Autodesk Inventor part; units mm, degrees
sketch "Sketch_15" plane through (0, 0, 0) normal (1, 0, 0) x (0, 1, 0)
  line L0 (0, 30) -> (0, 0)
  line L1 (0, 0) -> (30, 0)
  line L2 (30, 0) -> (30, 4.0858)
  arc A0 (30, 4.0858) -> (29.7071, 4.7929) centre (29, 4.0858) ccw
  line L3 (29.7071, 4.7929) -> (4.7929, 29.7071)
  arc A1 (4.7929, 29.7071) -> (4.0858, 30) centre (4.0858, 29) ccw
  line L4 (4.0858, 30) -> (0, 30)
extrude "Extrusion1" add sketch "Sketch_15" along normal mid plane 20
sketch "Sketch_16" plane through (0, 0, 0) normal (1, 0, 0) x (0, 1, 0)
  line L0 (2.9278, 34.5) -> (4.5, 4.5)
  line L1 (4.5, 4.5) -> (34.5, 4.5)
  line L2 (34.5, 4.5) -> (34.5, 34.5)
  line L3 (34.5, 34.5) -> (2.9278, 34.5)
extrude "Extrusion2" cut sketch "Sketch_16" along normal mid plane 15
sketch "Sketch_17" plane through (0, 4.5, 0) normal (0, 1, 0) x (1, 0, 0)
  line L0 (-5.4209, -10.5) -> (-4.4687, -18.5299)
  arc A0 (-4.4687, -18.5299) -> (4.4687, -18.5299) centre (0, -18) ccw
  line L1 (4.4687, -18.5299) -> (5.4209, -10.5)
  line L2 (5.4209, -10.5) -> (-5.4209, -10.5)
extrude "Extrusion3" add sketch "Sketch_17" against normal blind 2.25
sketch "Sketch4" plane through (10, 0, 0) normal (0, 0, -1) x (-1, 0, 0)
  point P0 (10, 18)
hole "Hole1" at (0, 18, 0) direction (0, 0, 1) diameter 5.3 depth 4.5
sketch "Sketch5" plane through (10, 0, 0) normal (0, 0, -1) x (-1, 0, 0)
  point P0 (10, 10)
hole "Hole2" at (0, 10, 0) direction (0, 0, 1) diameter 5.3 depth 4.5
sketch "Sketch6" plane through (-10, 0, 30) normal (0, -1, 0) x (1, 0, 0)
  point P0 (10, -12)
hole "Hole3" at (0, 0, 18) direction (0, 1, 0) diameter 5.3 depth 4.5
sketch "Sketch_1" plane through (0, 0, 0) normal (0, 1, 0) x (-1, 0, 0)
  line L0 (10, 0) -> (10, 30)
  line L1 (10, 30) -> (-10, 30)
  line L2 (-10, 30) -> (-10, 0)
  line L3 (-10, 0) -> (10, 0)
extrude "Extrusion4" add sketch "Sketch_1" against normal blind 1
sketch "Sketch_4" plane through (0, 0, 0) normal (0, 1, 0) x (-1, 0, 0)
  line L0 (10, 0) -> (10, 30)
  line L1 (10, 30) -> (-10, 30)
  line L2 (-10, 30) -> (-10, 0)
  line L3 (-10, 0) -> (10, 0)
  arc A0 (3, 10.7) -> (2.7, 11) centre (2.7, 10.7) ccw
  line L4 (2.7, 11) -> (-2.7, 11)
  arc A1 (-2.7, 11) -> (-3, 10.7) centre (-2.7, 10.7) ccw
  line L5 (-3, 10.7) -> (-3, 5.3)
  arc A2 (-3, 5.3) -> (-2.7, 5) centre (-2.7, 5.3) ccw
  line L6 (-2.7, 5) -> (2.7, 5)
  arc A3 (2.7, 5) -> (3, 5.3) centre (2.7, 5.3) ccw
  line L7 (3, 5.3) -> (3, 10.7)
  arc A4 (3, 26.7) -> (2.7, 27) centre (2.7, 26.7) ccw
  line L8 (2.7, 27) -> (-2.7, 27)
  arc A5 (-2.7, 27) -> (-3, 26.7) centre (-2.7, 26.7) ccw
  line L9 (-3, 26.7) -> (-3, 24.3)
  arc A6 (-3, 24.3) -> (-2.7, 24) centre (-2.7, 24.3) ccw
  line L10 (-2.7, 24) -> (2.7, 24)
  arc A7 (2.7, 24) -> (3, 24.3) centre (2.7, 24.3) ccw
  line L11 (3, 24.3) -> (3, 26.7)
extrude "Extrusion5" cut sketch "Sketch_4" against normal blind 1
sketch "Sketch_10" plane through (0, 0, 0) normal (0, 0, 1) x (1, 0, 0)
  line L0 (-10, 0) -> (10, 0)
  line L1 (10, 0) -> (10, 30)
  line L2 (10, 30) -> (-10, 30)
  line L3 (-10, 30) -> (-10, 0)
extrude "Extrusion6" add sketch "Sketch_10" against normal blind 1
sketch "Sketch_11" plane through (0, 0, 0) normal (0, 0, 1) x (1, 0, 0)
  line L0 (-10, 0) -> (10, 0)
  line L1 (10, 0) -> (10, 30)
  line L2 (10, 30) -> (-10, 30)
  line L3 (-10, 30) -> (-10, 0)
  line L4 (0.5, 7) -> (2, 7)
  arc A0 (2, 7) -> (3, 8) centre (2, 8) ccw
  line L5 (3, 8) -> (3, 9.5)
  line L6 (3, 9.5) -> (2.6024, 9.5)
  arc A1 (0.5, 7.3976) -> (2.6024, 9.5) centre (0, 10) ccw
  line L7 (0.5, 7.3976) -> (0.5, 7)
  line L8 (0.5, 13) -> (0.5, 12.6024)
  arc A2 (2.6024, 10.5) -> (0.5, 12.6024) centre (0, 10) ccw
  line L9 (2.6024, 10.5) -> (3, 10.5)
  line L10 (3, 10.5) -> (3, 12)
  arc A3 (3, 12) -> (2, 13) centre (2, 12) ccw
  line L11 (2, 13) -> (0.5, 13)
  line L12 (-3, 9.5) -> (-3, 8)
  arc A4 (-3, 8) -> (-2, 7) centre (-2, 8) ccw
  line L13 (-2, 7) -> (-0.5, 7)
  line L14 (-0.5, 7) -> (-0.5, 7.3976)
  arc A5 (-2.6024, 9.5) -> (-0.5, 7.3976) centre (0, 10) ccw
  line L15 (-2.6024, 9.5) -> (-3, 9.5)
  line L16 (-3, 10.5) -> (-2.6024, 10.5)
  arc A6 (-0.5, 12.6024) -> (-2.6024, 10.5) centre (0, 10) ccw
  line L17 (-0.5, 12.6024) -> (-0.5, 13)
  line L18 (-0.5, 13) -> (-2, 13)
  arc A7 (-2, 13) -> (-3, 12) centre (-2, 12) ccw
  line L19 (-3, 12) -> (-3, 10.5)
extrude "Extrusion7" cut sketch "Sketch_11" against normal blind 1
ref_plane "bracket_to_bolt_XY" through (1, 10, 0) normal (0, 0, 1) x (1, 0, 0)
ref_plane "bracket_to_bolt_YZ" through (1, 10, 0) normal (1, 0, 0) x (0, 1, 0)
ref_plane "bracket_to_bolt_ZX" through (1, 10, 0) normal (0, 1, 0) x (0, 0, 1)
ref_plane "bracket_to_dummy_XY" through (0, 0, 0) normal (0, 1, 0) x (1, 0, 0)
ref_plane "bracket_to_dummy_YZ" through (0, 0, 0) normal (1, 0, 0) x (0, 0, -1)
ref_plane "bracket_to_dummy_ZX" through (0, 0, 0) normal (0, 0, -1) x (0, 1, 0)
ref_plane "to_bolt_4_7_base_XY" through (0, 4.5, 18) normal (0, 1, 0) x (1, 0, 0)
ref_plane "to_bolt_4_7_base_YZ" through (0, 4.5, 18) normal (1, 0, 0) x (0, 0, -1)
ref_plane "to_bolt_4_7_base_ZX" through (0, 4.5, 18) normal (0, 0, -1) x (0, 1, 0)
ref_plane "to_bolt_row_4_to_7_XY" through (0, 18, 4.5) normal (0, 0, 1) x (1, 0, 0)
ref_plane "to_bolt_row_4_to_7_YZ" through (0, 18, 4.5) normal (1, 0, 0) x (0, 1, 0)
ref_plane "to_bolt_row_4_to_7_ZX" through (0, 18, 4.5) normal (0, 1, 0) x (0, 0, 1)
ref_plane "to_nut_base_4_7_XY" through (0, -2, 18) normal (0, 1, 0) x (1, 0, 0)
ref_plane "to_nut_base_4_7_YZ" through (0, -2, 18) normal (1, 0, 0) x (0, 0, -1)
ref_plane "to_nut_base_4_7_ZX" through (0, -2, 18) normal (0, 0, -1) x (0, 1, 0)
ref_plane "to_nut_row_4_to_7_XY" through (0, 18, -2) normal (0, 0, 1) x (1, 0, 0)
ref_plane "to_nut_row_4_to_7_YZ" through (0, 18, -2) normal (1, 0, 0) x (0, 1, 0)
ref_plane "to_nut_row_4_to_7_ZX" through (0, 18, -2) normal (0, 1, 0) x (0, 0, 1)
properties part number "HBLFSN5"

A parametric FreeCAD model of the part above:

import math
import FreeCAD as App
import Part
import Sketcher
from FreeCAD import Vector
Q = App.Units.Quantity

doc = App.newDocument("Part")
body = doc.addObject("PartDesign::Body", "Body")

sketch1 = body.newObject("Sketcher::SketchObject", "Sketch")
sketch1.AttachmentSupport = (doc.getObject("YZ_Plane"), [""])
sketch1.MapMode = "FlatFace"
sketch1.addGeometry(Part.LineSegment(Vector(4.1, 30, 0), Vector(0, 30, 0)), False)
sketch1.addGeometry(Part.LineSegment(Vector(0, 30, 0), Vector(0, 0, 0)), False)
sketch1.addGeometry(Part.LineSegment(Vector(0, 0, 0), Vector(30, 0, 0)), False)
sketch1.addGeometry(Part.LineSegment(Vector(30, 0, 0), Vector(30, 4.1, 0)), False)
sketch1.addGeometry(Part.ArcOfCircle(Part.Circle(Vector(29, 4.1, 0), Vector(0, 0, 1), 1), math.radians(0), math.radians(45)), False)
sketch1.addGeometry(Part.LineSegment(Vector(29.7, 4.8, 0), Vector(4.8, 29.7, 0)), False)
sketch1.addGeometry(Part.ArcOfCircle(Part.Circle(Vector(4.1, 29, 0), Vector(0, 0, 1), 1), math.radians(45), math.radians(90)), False)
sketch1.addConstraint(Sketcher.Constraint("Coincident", 0, 2, 1, 1))
sketch1.addConstraint(Sketcher.Constraint("Coincident", 1, 2, 2, 1))
sketch1.addConstraint(Sketcher.Constraint("Coincident", 2, 2, 3, 1))
sketch1.addConstraint(Sketcher.Constraint("Tangent", 3, 2, 4, 1))
sketch1.addConstraint(Sketcher.Constraint("Tangent", 4, 2, 5, 1))
sketch1.addConstraint(Sketcher.Constraint("Tangent", 5, 2, 6, 1))
sketch1.addConstraint(Sketcher.Constraint("Tangent", 6, 2, 0, 1))
sketch1.addConstraint(Sketcher.Constraint("Horizontal", 0))
sketch1.addConstraint(Sketcher.Constraint("Vertical", 1))
sketch1.addConstraint(Sketcher.Constraint("Horizontal", 2))
sketch1.addConstraint(Sketcher.Constraint("Vertical", 3))
sketch1.addConstraint(Sketcher.Constraint("Coincident", 1, 2, -1, 1))
sketch1.addConstraint(Sketcher.Constraint("Equal", 4, 6))
sketch1.addConstraint(Sketcher.Constraint("Equal", 2, 1))
sketch1.addConstraint(Sketcher.Constraint("Equal", 0, 3))
sketch1.addConstraint(Sketcher.Constraint("Radius", 4, Q("1 mm")))
sketch1.addConstraint(Sketcher.Constraint("DistanceX", 2, 1, 2, 2, Q("30 mm")))
sketch1.addConstraint(Sketcher.Constraint("Distance", 5, Q("35.234 mm")))
pad1 = body.newObject("PartDesign::Pad", "Pad")
pad1.Profile = sketch1
pad1.Length = 20
pad1.Midplane = True

sketch2 = body.newObject("Sketcher::SketchObject", "Sketch001")
sketch2.AttachmentSupport = (doc.getObject("YZ_Plane"), [""])
sketch2.MapMode = "FlatFace"
sketch2.addGeometry(Part.LineSegment(Vector(34, 34, 0), Vector(3, 34, 0)), False)
sketch2.addGeometry(Part.LineSegment(Vector(3, 34, 0), Vector(4, 4, 0)), False)
sketch2.addGeometry(Part.LineSegment(Vector(4, 4, 0), Vector(34, 4, 0)), False)
sketch2.addGeometry(Part.LineSegment(Vector(34, 4, 0), Vector(34, 34, 0)), False)
sketch2.addConstraint(Sketcher.Constraint("Coincident", 0, 2, 1, 1))
sketch2.addConstraint(Sketcher.Constraint("Coincident", 1, 2, 2, 1))
sketch2.addConstraint(Sketcher.Constraint("Coincident", 2, 2, 3, 1))
sketch2.addConstraint(Sketcher.Constraint("Coincident", 3, 2, 0, 1))
sketch2.addConstraint(Sketcher.Constraint("Horizontal", 0))
sketch2.addConstraint(Sketcher.Constraint("Horizontal", 2))
sketch2.addConstraint(Sketcher.Constraint("Vertical", 3))
sketch2.addConstraint(Sketcher.Constraint("Equal", 2, 3))
sketch2.addConstraint(Sketcher.Constraint("DistanceX", 2, 1, 2, 2, Q("30 mm")))
sketch2.addConstraint(Sketcher.Constraint("Angle", 1, Q("-87 deg")))
sketch2.addConstraint(Sketcher.Constraint("DistanceY", -1, 1, 0, 2, Q("34.5 mm")))
sketch2.addConstraint(Sketcher.Constraint("DistanceX", -1, 1, 1, 2, Q("4.5 mm")))
pocket1 = body.newObject("PartDesign::Pocket", "Pocket")
pocket1.Profile = sketch2
pocket1.Length = 15
pocket1.Midplane = True

sketch3 = body.newObject("Sketcher::SketchObject", "Sketch002")
sketch3.AttachmentSupport = (doc.getObject("XZ_Plane"), [""])
sketch3.MapMode = "FlatFace"
sketch3.AttachmentOffset = App.Placement(Vector(0, 0, -4.5), App.Rotation())
sketch3.addGeometry(Part.LineSegment(Vector(5.4, 10.5, 0), Vector(-5.4, 10.5, 0)), False)
sketch3.addGeometry(Part.LineSegment(Vector(-5.4, 10.5, 0), Vector(-4.5, 18.5, 0)), False)
sketch3.addGeometry(Part.ArcOfCircle(Part.Circle(Vector(0, 18, 0), Vector(0, 0, 1), 4.5), math.radians(7), math.radians(173)), False)
sketch3.addGeometry(Part.LineSegment(Vector(4.5, 18.5, 0), Vector(5.4, 10.5, 0)), False)
sketch3.addConstraint(Sketcher.Constraint("Coincident", 0, 2, 1, 1))
sketch3.addConstraint(Sketcher.Constraint("Tangent", 1, 2, 2, 2))
sketch3.addConstraint(Sketcher.Constraint("Tangent", 2, 1, 3, 1))
sketch3.addConstraint(Sketcher.Constraint("Coincident", 3, 2, 0, 1))
sketch3.addConstraint(Sketcher.Constraint("Horizontal", 0))
sketch3.addConstraint(Sketcher.Constraint("Symmetric", 1, 2, 2, 1, -2))
sketch3.addConstraint(Sketcher.Constraint("Radius", 2, Q("4.5 mm")))
sketch3.addConstraint(Sketcher.Constraint("DistanceY", -1, 1, 2, 3, Q("18 mm")))
sketch3.addConstraint(Sketcher.Constraint("DistanceY", -1, 1, 0, 2, Q("10.5 mm")))
sketch3.addConstraint(Sketcher.Constraint("DistanceY", -1, 1, 1, 2, Q("18.53 mm")))
pad2 = body.newObject("PartDesign::Pad", "Pad001")
pad2.Profile = sketch3
pad2.Length = 2.25

sketch4 = body.newObject("Sketcher::SketchObject", "Sketch003")
sketch4.AttachmentSupport = (doc.getObject("XY_Plane"), [""])
sketch4.MapMode = "FlatFace"
sketch4.addGeometry(Part.Circle(Vector(0, 18, 0), Vector(0, 0, 1), 2.6), False)
sketch4.addConstraint(Sketcher.Constraint("PointOnObject", 0, 3, -2))
sketch4.addConstraint(Sketcher.Constraint("Diameter", 0, Q("5.3 mm")))
sketch4.addConstraint(Sketcher.Constraint("DistanceY", -1, 1, 0, 3, Q("18 mm")))
doc.recompute()
hole = body.newObject("PartDesign::Hole", "Hole")
hole.Profile = sketch4
hole.ThreadType = "None"
hole.Diameter = 5.3
hole.DepthType = "Dimension"
hole.Depth = 4.5
hole.DrillPoint = "Flat"
hole.Reversed = True

sketch5 = body.newObject("Sketcher::SketchObject", "Sketch004")
sketch5.AttachmentSupport = (doc.getObject("XY_Plane"), [""])
sketch5.MapMode = "FlatFace"
sketch5.addGeometry(Part.Circle(Vector(0, 10, 0), Vector(0, 0, 1), 2.6), False)
sketch5.addConstraint(Sketcher.Constraint("PointOnObject", 0, 3, -2))
sketch5.addConstraint(Sketcher.Constraint("Diameter", 0, Q("5.3 mm")))
sketch5.addConstraint(Sketcher.Constraint("DistanceY", -1, 1, 0, 3, Q("10 mm")))
doc.recompute()
hole2 = body.newObject("PartDesign::Hole", "Hole001")
hole2.Profile = sketch5
hole2.ThreadType = "None"
hole2.Diameter = 5.3
hole2.DepthType = "Dimension"
hole2.Depth = 4.5
hole2.DrillPoint = "Flat"
hole2.Reversed = True

sketch6 = body.newObject("Sketcher::SketchObject", "Sketch005")
sketch6.AttachmentSupport = (doc.getObject("XZ_Plane"), [""])
sketch6.MapMode = "FlatFace"
sketch6.addGeometry(Part.Circle(Vector(0, 18, 0), Vector(0, 0, 1), 2.6), False)
sketch6.addConstraint(Sketcher.Constraint("PointOnObject", 0, 3, -2))
sketch6.addConstraint(Sketcher.Constraint("Diameter", 0, Q("5.3 mm")))
sketch6.addConstraint(Sketcher.Constraint("DistanceY", -1, 1, 0, 3, Q("18 mm")))
doc.recompute()
hole3 = body.newObject("PartDesign::Hole", "Hole002")
hole3.Profile = sketch6
hole3.ThreadType = "None"
hole3.Diameter = 5.3
hole3.DepthType = "Dimension"
hole3.Depth = 4.5
hole3.DrillPoint = "Flat"

sketch7 = body.newObject("Sketcher::SketchObject", "Sketch006")
sketch7.AttachmentSupport = (doc.getObject("XZ_Plane"), [""])
sketch7.MapMode = "FlatFace"
sketch7.addGeometry(Part.LineSegment(Vector(10, 0, 0), Vector(-10, 0, 0)), False)
sketch7.addGeometry(Part.LineSegment(Vector(-10, 0, 0), Vector(-10, 30, 0)), False)
sketch7.addGeometry(Part.LineSegment(Vector(-10, 30, 0), Vector(10, 30, 0)), False)
sketch7.addGeometry(Part.LineSegment(Vector(10, 30, 0), Vector(10, 0, 0)), False)
sketch7.addConstraint(Sketcher.Constraint("Coincident", 0, 2, 1, 1))
sketch7.addConstraint(Sketcher.Constraint("Coincident", 1, 2, 2, 1))
sketch7.addConstraint(Sketcher.Constraint("Coincident", 2, 2, 3, 1))
sketch7.addConstraint(Sketcher.Constraint("Coincident", 3, 2, 0, 1))
sketch7.addConstraint(Sketcher.Constraint("Horizontal", 0))
sketch7.addConstraint(Sketcher.Constraint("Vertical", 1))
sketch7.addConstraint(Sketcher.Constraint("Horizontal", 2))
sketch7.addConstraint(Sketcher.Constraint("Vertical", 3))
sketch7.addConstraint(Sketcher.Constraint("Symmetric", 0, 2, 3, 2, -1, 1))
sketch7.addConstraint(Sketcher.Constraint("DistanceX", 0, 2, 0, 1, Q("20 mm")))
sketch7.addConstraint(Sketcher.Constraint("DistanceY", 1, 1, 1, 2, Q("30 mm")))
pad3 = body.newObject("PartDesign::Pad", "Pad002")
pad3.Profile = sketch7
pad3.Length = 1

sketch8 = body.newObject("Sketcher::SketchObject", "Sketch007")
sketch8.AttachmentSupport = (doc.getObject("XZ_Plane"), [""])
sketch8.MapMode = "FlatFace"
sketch8.addGeometry(Part.LineSegment(Vector(10, 0, 0), Vector(-10, 0, 0)), False)
sketch8.addGeometry(Part.LineSegment(Vector(-10, 0, 0), Vector(-10, 30, 0)), False)
sketch8.addGeometry(Part.LineSegment(Vector(-10, 30, 0), Vector(10, 30, 0)), False)
sketch8.addGeometry(Part.LineSegment(Vector(10, 30, 0), Vector(10, 0, 0)), False)
sketch8.addGeometry(Part.ArcOfCircle(Part.Circle(Vector(-2.7, 10.7, 0), Vector(0, 0, 1), 0.3), math.radians(90), math.radians(180)), False)
sketch8.addGeometry(Part.LineSegment(Vector(-3, 10.7, 0), Vector(-3, 5.3, 0)), False)
sketch8.addGeometry(Part.ArcOfCircle(Part.Circle(Vector(-2.7, 5.3, 0), Vector(0, 0, 1), 0.3), math.radians(180), math.radians(270)), False)
sketch8.addGeometry(Part.LineSegment(Vector(-2.7, 5, 0), Vector(2.7, 5, 0)), False)
sketch8.addGeometry(Part.ArcOfCircle(Part.Circle(Vector(2.7, 5.3, 0), Vector(0, 0, 1), 0.3), math.radians(-90), math.radians(0)), False)
sketch8.addGeometry(Part.LineSegment(Vector(3, 5.3, 0), Vector(3, 10.7, 0)), False)
sketch8.addGeometry(Part.ArcOfCircle(Part.Circle(Vector(2.7, 10.7, 0), Vector(0, 0, 1), 0.3), math.radians(0), math.radians(90)), False)
sketch8.addGeometry(Part.LineSegment(Vector(2.7, 11, 0), Vector(-2.7, 11, 0)), False)
sketch8.addGeometry(Part.ArcOfCircle(Part.Circle(Vector(-2.7, 26.7, 0), Vector(0, 0, 1), 0.3), math.radians(90), math.radians(180)), False)
sketch8.addGeometry(Part.LineSegment(Vector(-3, 26.7, 0), Vector(-3, 24.3, 0)), False)
sketch8.addGeometry(Part.ArcOfCircle(Part.Circle(Vector(-2.7, 24.3, 0), Vector(0, 0, 1), 0.3), math.radians(180), math.radians(270)), False)
sketch8.addGeometry(Part.LineSegment(Vector(-2.7, 24, 0), Vector(2.7, 24, 0)), False)
sketch8.addGeometry(Part.ArcOfCircle(Part.Circle(Vector(2.7, 24.3, 0), Vector(0, 0, 1), 0.3), math.radians(-90), math.radians(0)), False)
sketch8.addGeometry(Part.LineSegment(Vector(3, 24.3, 0), Vector(3, 26.7, 0)), False)
sketch8.addGeometry(Part.ArcOfCircle(Part.Circle(Vector(2.7, 26.7, 0), Vector(0, 0, 1), 0.3), math.radians(0), math.radians(90)), False)
sketch8.addGeometry(Part.LineSegment(Vector(2.7, 27, 0), Vector(-2.7, 27, 0)), False)
sketch8.addConstraint(Sketcher.Constraint("Coincident", 0, 2, 1, 1))
sketch8.addConstraint(Sketcher.Constraint("Coincident", 1, 2, 2, 1))
sketch8.addConstraint(Sketcher.Constraint("Coincident", 2, 2, 3, 1))
sketch8.addConstraint(Sketcher.Constraint("Coincident", 3, 2, 0, 1))
sketch8.addConstraint(Sketcher.Constraint("Tangent", 4, 2, 5, 1))
sketch8.addConstraint(Sketcher.Constraint("Tangent", 5, 2, 6, 1))
sketch8.addConstraint(Sketcher.Constraint("Tangent", 6, 2, 7, 1))
sketch8.addConstraint(Sketcher.Constraint("Tangent", 7, 2, 8, 1))
sketch8.addConstraint(Sketcher.Constraint("Tangent", 8, 2, 9, 1))
sketch8.addConstraint(Sketcher.Constraint("Tangent", 9, 2, 10, 1))
sketch8.addConstraint(Sketcher.Constraint("Tangent", 10, 2, 11, 1))
sketch8.addConstraint(Sketcher.Constraint("Tangent", 11, 2, 4, 1))
sketch8.addConstraint(Sketcher.Constraint("Tangent", 12, 2, 13, 1))
sketch8.addConstraint(Sketcher.Constraint("Tangent", 13, 2, 14, 1))
sketch8.addConstraint(Sketcher.Constraint("Tangent", 14, 2, 15, 1))
sketch8.addConstraint(Sketcher.Constraint("Tangent", 15, 2, 16, 1))
sketch8.addConstraint(Sketcher.Constraint("Tangent", 16, 2, 17, 1))
sketch8.addConstraint(Sketcher.Constraint("Tangent", 17, 2, 18, 1))
sketch8.addConstraint(Sketcher.Constraint("Tangent", 18, 2, 19, 1))
sketch8.addConstraint(Sketcher.Constraint("Tangent", 19, 2, 12, 1))
sketch8.addConstraint(Sketcher.Constraint("Horizontal", 0))
sketch8.addConstraint(Sketcher.Constraint("Vertical", 1))
sketch8.addConstraint(Sketcher.Constraint("Horizontal", 2))
sketch8.addConstraint(Sketcher.Constraint("Vertical", 3))
sketch8.addConstraint(Sketcher.Constraint("Vertical", 5))
sketch8.addConstraint(Sketcher.Constraint("Horizontal", 7))
sketch8.addConstraint(Sketcher.Constraint("Vertical", 9))
sketch8.addConstraint(Sketcher.Constraint("Horizontal", 11))
sketch8.addConstraint(Sketcher.Constraint("Vertical", 13))
sketch8.addConstraint(Sketcher.Constraint("Horizontal", 15))
sketch8.addConstraint(Sketcher.Constraint("Vertical", 17))
sketch8.addConstraint(Sketcher.Constraint("Horizontal", 19))
sketch8.addConstraint(Sketcher.Constraint("Equal", 4, 6))
sketch8.addConstraint(Sketcher.Constraint("Equal", 6, 8))
sketch8.addConstraint(Sketcher.Constraint("Equal", 8, 10))
sketch8.addConstraint(Sketcher.Constraint("Equal", 10, 12))
sketch8.addConstraint(Sketcher.Constraint("Equal", 12, 14))
sketch8.addConstraint(Sketcher.Constraint("Equal", 14, 16))
sketch8.addConstraint(Sketcher.Constraint("Equal", 16, 18))
sketch8.addConstraint(Sketcher.Constraint("Symmetric", 0, 2, 3, 2, -1, 1))
sketch8.addConstraint(Sketcher.Constraint("Vertical", 6, 3, 12, 3))
sketch8.addConstraint(Sketcher.Constraint("Vertical", 10, 3, 16, 3))
sketch8.addConstraint(Sketcher.Constraint("Equal", 19, 5))
sketch8.addConstraint(Sketcher.Constraint("Radius", 4, Q("0.3 mm")))
sketch8.addConstraint(Sketcher.Constraint("DistanceX", 0, 2, 0, 1, Q("20 mm")))
sketch8.addConstraint(Sketcher.Constraint("DistanceY", 1, 1, 1, 2, Q("30 mm")))
sketch8.addConstraint(Sketcher.Constraint("DistanceX", 7, 1, 7, 2, Q("5.4 mm")))
sketch8.addConstraint(Sketcher.Constraint("DistanceY", 13, 2, 13, 1, Q("2.4 mm")))
sketch8.addConstraint(Sketcher.Constraint("DistanceX", 4, 2, -1, 1, Q("3 mm")))
sketch8.addConstraint(Sketcher.Constraint("DistanceY", -1, 1, 6, 2, Q("5 mm")))
sketch8.addConstraint(Sketcher.Constraint("DistanceY", -1, 1, 14, 2, Q("24 mm")))
pocket2 = body.newObject("PartDesign::Pocket", "Pocket001")
pocket2.Profile = sketch8
pocket2.Length = 1
pocket2.Reversed = True

sketch9 = body.newObject("Sketcher::SketchObject", "Sketch008")
sketch9.AttachmentSupport = (doc.getObject("XY_Plane"), [""])
sketch9.MapMode = "FlatFace"
sketch9.addGeometry(Part.LineSegment(Vector(-10, 30, 0), Vector(-10, 0, 0)), False)
sketch9.addGeometry(Part.LineSegment(Vector(-10, 0, 0), Vector(10, 0, 0)), False)
sketch9.addGeometry(Part.LineSegment(Vector(10, 0, 0), Vector(10, 30, 0)), False)
sketch9.addGeometry(Part.LineSegment(Vector(10, 30, 0), Vector(-10, 30, 0)), False)
sketch9.addConstraint(Sketcher.Constraint("Coincident", 0, 2, 1, 1))
sketch9.addConstraint(Sketcher.Constraint("Coincident", 1, 2, 2, 1))
sketch9.addConstraint(Sketcher.Constraint("Coincident", 2, 2, 3, 1))
sketch9.addConstraint(Sketcher.Constraint("Coincident", 3, 2, 0, 1))
sketch9.addConstraint(Sketcher.Constraint("Vertical", 0))
sketch9.addConstraint(Sketcher.Constraint("Horizontal", 1))
sketch9.addConstraint(Sketcher.Constraint("Vertical", 2))
sketch9.addConstraint(Sketcher.Constraint("Horizontal", 3))
sketch9.addConstraint(Sketcher.Constraint("Symmetric", 0, 2, 1, 2, -1, 1))
sketch9.addConstraint(Sketcher.Constraint("DistanceX", 1, 1, 1, 2, Q("20 mm")))
sketch9.addConstraint(Sketcher.Constraint("DistanceY", 0, 2, 0, 1, Q("30 mm")))
pad4 = body.newObject("PartDesign::Pad", "Pad003")
pad4.Profile = sketch9
pad4.Length = 1
pad4.Reversed = True

sketch10 = body.newObject("Sketcher::SketchObject", "Sketch009")
sketch10.AttachmentSupport = (doc.getObject("XY_Plane"), [""])
sketch10.MapMode = "FlatFace"
sketch10.addGeometry(Part.LineSegment(Vector(-10, 30, 0), Vector(-10, 0, 0)), False)
sketch10.addGeometry(Part.LineSegment(Vector(-10, 0, 0), Vector(10, 0, 0)), False)
sketch10.addGeometry(Part.LineSegment(Vector(10, 0, 0), Vector(10, 30, 0)), False)
sketch10.addGeometry(Part.LineSegment(Vector(10, 30, 0), Vector(-10, 30, 0)), False)
sketch10.addGeometry(Part.LineSegment(Vector(-3, 8, 0), Vector(-3, 9.5, 0)), False)
sketch10.addGeometry(Part.LineSegment(Vector(-3, 9.5, 0), Vector(-2.6, 9.5, 0)), False)
sketch10.addGeometry(Part.ArcOfCircle(Part.Circle(Vector(0, 10, 0), Vector(0, 0, 1), 2.65), math.radians(-169), math.radians(-101)), False)
sketch10.addGeometry(Part.LineSegment(Vector(-0.5, 7.4, 0), Vector(-0.5, 7, 0)), False)
sketch10.addGeometry(Part.LineSegment(Vector(-0.5, 7, 0), Vector(-2, 7, 0)), False)
sketch10.addGeometry(Part.ArcOfCircle(Part.Circle(Vector(-2, 8, 0), Vector(0, 0, 1), 1), math.radians(180), math.radians(270)), False)
sketch10.addGeometry(Part.LineSegment(Vector(-2.6, 10.5, 0), Vector(-3, 10.5, 0)), False)
sketch10.addGeometry(Part.LineSegment(Vector(-3, 10.5, 0), Vector(-3, 12, 0)), False)
sketch10.addGeometry(Part.ArcOfCircle(Part.Circle(Vector(-2, 12, 0), Vector(0, 0, 1), 1), math.radians(90), math.radians(180)), False)
sketch10.addGeometry(Part.LineSegment(Vector(-2, 13, 0), Vector(-0.5, 13, 0)), False)
sketch10.addGeometry(Part.LineSegment(Vector(-0.5, 13, 0), Vector(-0.5, 12.6, 0)), False)
sketch10.addGeometry(Part.ArcOfCircle(Part.Circle(Vector(0, 10, 0), Vector(0, 0, 1), 2.65), math.radians(101), math.radians(169)), False)
sketch10.addGeometry(Part.LineSegment(Vector(2, 7, 0), Vector(0.5, 7, 0)), False)
sketch10.addGeometry(Part.LineSegment(Vector(0.5, 7, 0), Vector(0.5, 7.4, 0)), False)
sketch10.addGeometry(Part.ArcOfCircle(Part.Circle(Vector(0, 10, 0), Vector(0, 0, 1), 2.65), math.radians(-79), math.radians(-11)), False)
sketch10.addGeometry(Part.LineSegment(Vector(2.6, 9.5, 0), Vector(3, 9.5, 0)), False)
sketch10.addGeometry(Part.LineSegment(Vector(3, 9.5, 0), Vector(3, 8, 0)), False)
sketch10.addGeometry(Part.ArcOfCircle(Part.Circle(Vector(2, 8, 0), Vector(0, 0, 1), 1), math.radians(-90), math.radians(0)), False)
sketch10.addGeometry(Part.LineSegment(Vector(0.5, 12.6, 0), Vector(0.5, 13, 0)), False)
sketch10.addGeometry(Part.LineSegment(Vector(0.5, 13, 0), Vector(2, 13, 0)), False)
sketch10.addGeometry(Part.ArcOfCircle(Part.Circle(Vector(2, 12, 0), Vector(0, 0, 1), 1), math.radians(0), math.radians(90)), False)
sketch10.addGeometry(Part.LineSegment(Vector(3, 12, 0), Vector(3, 10.5, 0)), False)
sketch10.addGeometry(Part.LineSegment(Vector(3, 10.5, 0), Vector(2.6, 10.5, 0)), False)
sketch10.addGeometry(Part.ArcOfCircle(Part.Circle(Vector(0, 10, 0), Vector(0, 0, 1), 2.65), math.radians(11), math.radians(79)), False)
sketch10.addConstraint(Sketcher.Constraint("Coincident", 0, 2, 1, 1))
sketch10.addConstraint(Sketcher.Constraint("Coincident", 1, 2, 2, 1))
sketch10.addConstraint(Sketcher.Constraint("Coincident", 2, 2, 3, 1))
sketch10.addConstraint(Sketcher.Constraint("Coincident", 3, 2, 0, 1))
sketch10.addConstraint(Sketcher.Constraint("Coincident", 4, 2, 5, 1))
sketch10.addConstraint(Sketcher.Constraint("Coincident", 5, 2, 6, 1))
sketch10.addConstraint(Sketcher.Constraint("Coincident", 6, 2, 7, 1))
sketch10.addConstraint(Sketcher.Constraint("Coincident", 7, 2, 8, 1))
sketch10.addConstraint(Sketcher.Constraint("Tangent", 8, 2, 9, 2))
sketch10.addConstraint(Sketcher.Constraint("Tangent", 9, 1, 4, 1))
sketch10.addConstraint(Sketcher.Constraint("Coincident", 10, 2, 11, 1))
sketch10.addConstraint(Sketcher.Constraint("Tangent", 11, 2, 12, 2))
sketch10.addConstraint(Sketcher.Constraint("Tangent", 12, 1, 13, 1))
sketch10.addConstraint(Sketcher.Constraint("Coincident", 13, 2, 14, 1))
sketch10.addConstraint(Sketcher.Constraint("Coincident", 14, 2, 15, 1))
sketch10.addConstraint(Sketcher.Constraint("Coincident", 15, 2, 10, 1))
sketch10.addConstraint(Sketcher.Constraint("Coincident", 16, 2, 17, 1))
sketch10.addConstraint(Sketcher.Constraint("Coincident", 17, 2, 18, 1))
sketch10.addConstraint(Sketcher.Constraint("Coincident", 18, 2, 19, 1))
sketch10.addConstraint(Sketcher.Constraint("Coincident", 19, 2, 20, 1))
sketch10.addConstraint(Sketcher.Constraint("Tangent", 20, 2, 21, 2))
sketch10.addConstraint(Sketcher.Constraint("Tangent", 21, 1, 16, 1))
sketch10.addConstraint(Sketcher.Constraint("Coincident", 22, 2, 23, 1))
sketch10.addConstraint(Sketcher.Constraint("Tangent", 23, 2, 24, 2))
sketch10.addConstraint(Sketcher.Constraint("Tangent", 24, 1, 25, 1))
sketch10.addConstraint(Sketcher.Constraint("Coincident", 25, 2, 26, 1))
sketch10.addConstraint(Sketcher.Constraint("Coincident", 26, 2, 27, 1))
sketch10.addConstraint(Sketcher.Constraint("Coincident", 27, 2, 22, 1))
sketch10.addConstraint(Sketcher.Constraint("Vertical", 0))
sketch10.addConstraint(Sketcher.Constraint("Horizontal", 1))
sketch10.addConstraint(Sketcher.Constraint("Vertical", 2))
sketch10.addConstraint(Sketcher.Constraint("Horizontal", 3))
sketch10.addConstraint(Sketcher.Constraint("Vertical", 4))
sketch10.addConstraint(Sketcher.Constraint("Horizontal", 5))
sketch10.addConstraint(Sketcher.Constraint("Vertical", 7))
sketch10.addConstraint(Sketcher.Constraint("Horizontal", 8))
sketch10.addConstraint(Sketcher.Constraint("Horizontal", 10))
sketch10.addConstraint(Sketcher.Constraint("Vertical", 11))
sketch10.addConstraint(Sketcher.Constraint("Horizontal", 13))
sketch10.addConstraint(Sketcher.Constraint("Vertical", 14))
sketch10.addConstraint(Sketcher.Constraint("Horizontal", 16))
sketch10.addConstraint(Sketcher.Constraint("Vertical", 17))
sketch10.addConstraint(Sketcher.Constraint("Horizontal", 19))
sketch10.addConstraint(Sketcher.Constraint("Vertical", 20))
sketch10.addConstraint(Sketcher.Constraint("Vertical", 22))
sketch10.addConstraint(Sketcher.Constraint("Horizontal", 23))
sketch10.addConstraint(Sketcher.Constraint("Vertical", 25))
sketch10.addConstraint(Sketcher.Constraint("Horizontal", 26))
sketch10.addConstraint(Sketcher.Constraint("Coincident", 15, 3, 6, 3))
sketch10.addConstraint(Sketcher.Constraint("Coincident", 18, 3, 6, 3))
sketch10.addConstraint(Sketcher.Constraint("Coincident", 27, 3, 6, 3))
sketch10.addConstraint(Sketcher.Constraint("Equal", 9, 12))
sketch10.addConstraint(Sketcher.Constraint("Equal", 6, 15))
sketch10.addConstraint(Sketcher.Constraint("Equal", 15, 18))
sketch10.addConstraint(Sketcher.Constraint("Equal", 12, 21))
sketch10.addConstraint(Sketcher.Constraint("Equal", 21, 24))
sketch10.addConstraint(Sketcher.Constraint("Equal", 18, 27))
sketch10.addConstraint(Sketcher.Constraint("Symmetric", 0, 2, 1, 2, -1, 1))
sketch10.addConstraint(Sketcher.Constraint("Symmetric", 9, 3, 21, 3, -2))
sketch10.addConstraint(Sketcher.Constraint("Symmetric", 12, 3, 24, 3, -2))
sketch10.addConstraint(Sketcher.Constraint("Symmetric", 6, 2, 17, 2, -2))
sketch10.addConstraint(Sketcher.Constraint("Horizontal", 5, 2, 18, 2))
sketch10.addConstraint(Sketcher.Constraint("Horizontal", 15, 2, 25, 2))
sketch10.addConstraint(Sketcher.Constraint("Horizontal", 14, 2, 27, 2))
sketch10.addConstraint(Sketcher.Constraint("Vertical", 9, 3, 12, 3))
sketch10.addConstraint(Sketcher.Constraint("Vertical", 7, 2, 13, 2))
sketch10.addConstraint(Sketcher.Constraint("Vertical", 5, 2, 15, 2))
sketch10.addConstraint(Sketcher.Constraint("Equal", 23, 4))
sketch10.addConstraint(Sketcher.Constraint("Equal", 26, 7))
sketch10.addConstraint(Sketcher.Constraint("Equal", 4, 11))
sketch10.addConstraint(Sketcher.Constraint("Radius", 9, Q("1 mm")))
sketch10.addConstraint(Sketcher.Constraint("DistanceX", 1, 1, 1, 2, Q("20 mm")))
sketch10.addConstraint(Sketcher.Constraint("DistanceY", 0, 2, 0, 1, Q("30 mm")))
sketch10.addConstraint(Sketcher.Constraint("Radius", 6, Q("2.65 mm")))
sketch10.addConstraint(Sketcher.Constraint("DistanceX", 8, 2, 8, 1, Q("1.5 mm")))
sketch10.addConstraint(Sketcher.Constraint("DistanceY", -1, 1, 6, 3, Q("10 mm")))
sketch10.addConstraint(Sketcher.Constraint("DistanceX", 9, 3, -1, 1, Q("2 mm")))
pocket3 = body.newObject("PartDesign::Pocket", "Pocket002")
pocket3.Profile = sketch10
pocket3.Length = 1

doc.recompute()
